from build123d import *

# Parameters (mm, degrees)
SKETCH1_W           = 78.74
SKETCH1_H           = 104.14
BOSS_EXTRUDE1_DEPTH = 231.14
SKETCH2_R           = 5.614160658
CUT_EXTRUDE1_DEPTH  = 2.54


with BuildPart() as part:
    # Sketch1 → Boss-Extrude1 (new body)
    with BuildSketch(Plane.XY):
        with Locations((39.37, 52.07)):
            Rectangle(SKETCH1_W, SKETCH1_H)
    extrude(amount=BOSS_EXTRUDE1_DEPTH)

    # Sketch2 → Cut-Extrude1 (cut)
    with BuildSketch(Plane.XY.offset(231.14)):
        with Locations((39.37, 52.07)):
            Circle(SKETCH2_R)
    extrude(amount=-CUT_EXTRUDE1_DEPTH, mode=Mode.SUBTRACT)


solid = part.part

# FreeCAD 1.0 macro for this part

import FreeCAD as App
import Part
import Sketcher
Q = App.Units.Quantity

doc = App.newDocument("Part")
body = doc.addObject("PartDesign::Body", "Body")

sketch1 = body.newObject("Sketcher::SketchObject", "Sketch")
sketch1.AttachmentSupport = (doc.getObject("XY_Plane"), [""])
sketch1.MapMode = "FlatFace"
sketch1.addGeometry([
    Part.LineSegment(App.Vector(0, 104, 0), App.Vector(0, 0, 0)),
    Part.LineSegment(App.Vector(0, 0, 0), App.Vector(79, 0, 0)),
    Part.LineSegment(App.Vector(79, 0, 0), App.Vector(79, 104, 0)),
    Part.LineSegment(App.Vector(79, 104, 0), App.Vector(0, 104, 0)),
], False)
sketch1.addConstraint([
    Sketcher.Constraint("Coincident", 0, 2, 1, 1),
    Sketcher.Constraint("Coincident", 1, 2, 2, 1),
    Sketcher.Constraint("Coincident", 2, 2, 3, 1),
    Sketcher.Constraint("Coincident", 3, 2, 0, 1),
    Sketcher.Constraint("Vertical", 0),
    Sketcher.Constraint("Horizontal", 1),
    Sketcher.Constraint("Vertical", 2),
    Sketcher.Constraint("Horizontal", 3),
    Sketcher.Constraint("Coincident", 0, 2, -1, 1),
    Sketcher.Constraint("DistanceX", 1, 1, 1, 2, Q("3.1 in")),
    Sketcher.Constraint("DistanceY", 0, 2, 0, 1, Q("4.1 in")),
])
pad1 = body.newObject("PartDesign::Pad", "Pad")
pad1.Profile = sketch1
pad1.Length = Q("9.1 in")

sketch2 = body.newObject("Sketcher::SketchObject", "Sketch001")
sketch2.AttachmentSupport = (doc.getObject("XY_Plane"), [""])
sketch2.MapMode = "FlatFace"
sketch2.AttachmentOffset = App.Placement(App.Vector(0, 0, 9.1 * 25.4), App.Rotation())
sketch2.addGeometry(Part.Circle(App.Vector(39, 52, 0), App.Vector(0, 0, 1), 6), False)
sketch2.addConstraint([
    Sketcher.Constraint("DistanceX", -1, 1, 0, 3, Q("1.55 in")),
    Sketcher.Constraint("DistanceY", -1, 1, 0, 3, Q("2.05 in")),
    Sketcher.Constraint("Diameter", 0, 11.228321),
])
pocket1 = body.newObject("PartDesign::Pocket", "Pocket")
pocket1.Profile = sketch2
pocket1.Length = Q("0.1 in")

doc.recompute()
